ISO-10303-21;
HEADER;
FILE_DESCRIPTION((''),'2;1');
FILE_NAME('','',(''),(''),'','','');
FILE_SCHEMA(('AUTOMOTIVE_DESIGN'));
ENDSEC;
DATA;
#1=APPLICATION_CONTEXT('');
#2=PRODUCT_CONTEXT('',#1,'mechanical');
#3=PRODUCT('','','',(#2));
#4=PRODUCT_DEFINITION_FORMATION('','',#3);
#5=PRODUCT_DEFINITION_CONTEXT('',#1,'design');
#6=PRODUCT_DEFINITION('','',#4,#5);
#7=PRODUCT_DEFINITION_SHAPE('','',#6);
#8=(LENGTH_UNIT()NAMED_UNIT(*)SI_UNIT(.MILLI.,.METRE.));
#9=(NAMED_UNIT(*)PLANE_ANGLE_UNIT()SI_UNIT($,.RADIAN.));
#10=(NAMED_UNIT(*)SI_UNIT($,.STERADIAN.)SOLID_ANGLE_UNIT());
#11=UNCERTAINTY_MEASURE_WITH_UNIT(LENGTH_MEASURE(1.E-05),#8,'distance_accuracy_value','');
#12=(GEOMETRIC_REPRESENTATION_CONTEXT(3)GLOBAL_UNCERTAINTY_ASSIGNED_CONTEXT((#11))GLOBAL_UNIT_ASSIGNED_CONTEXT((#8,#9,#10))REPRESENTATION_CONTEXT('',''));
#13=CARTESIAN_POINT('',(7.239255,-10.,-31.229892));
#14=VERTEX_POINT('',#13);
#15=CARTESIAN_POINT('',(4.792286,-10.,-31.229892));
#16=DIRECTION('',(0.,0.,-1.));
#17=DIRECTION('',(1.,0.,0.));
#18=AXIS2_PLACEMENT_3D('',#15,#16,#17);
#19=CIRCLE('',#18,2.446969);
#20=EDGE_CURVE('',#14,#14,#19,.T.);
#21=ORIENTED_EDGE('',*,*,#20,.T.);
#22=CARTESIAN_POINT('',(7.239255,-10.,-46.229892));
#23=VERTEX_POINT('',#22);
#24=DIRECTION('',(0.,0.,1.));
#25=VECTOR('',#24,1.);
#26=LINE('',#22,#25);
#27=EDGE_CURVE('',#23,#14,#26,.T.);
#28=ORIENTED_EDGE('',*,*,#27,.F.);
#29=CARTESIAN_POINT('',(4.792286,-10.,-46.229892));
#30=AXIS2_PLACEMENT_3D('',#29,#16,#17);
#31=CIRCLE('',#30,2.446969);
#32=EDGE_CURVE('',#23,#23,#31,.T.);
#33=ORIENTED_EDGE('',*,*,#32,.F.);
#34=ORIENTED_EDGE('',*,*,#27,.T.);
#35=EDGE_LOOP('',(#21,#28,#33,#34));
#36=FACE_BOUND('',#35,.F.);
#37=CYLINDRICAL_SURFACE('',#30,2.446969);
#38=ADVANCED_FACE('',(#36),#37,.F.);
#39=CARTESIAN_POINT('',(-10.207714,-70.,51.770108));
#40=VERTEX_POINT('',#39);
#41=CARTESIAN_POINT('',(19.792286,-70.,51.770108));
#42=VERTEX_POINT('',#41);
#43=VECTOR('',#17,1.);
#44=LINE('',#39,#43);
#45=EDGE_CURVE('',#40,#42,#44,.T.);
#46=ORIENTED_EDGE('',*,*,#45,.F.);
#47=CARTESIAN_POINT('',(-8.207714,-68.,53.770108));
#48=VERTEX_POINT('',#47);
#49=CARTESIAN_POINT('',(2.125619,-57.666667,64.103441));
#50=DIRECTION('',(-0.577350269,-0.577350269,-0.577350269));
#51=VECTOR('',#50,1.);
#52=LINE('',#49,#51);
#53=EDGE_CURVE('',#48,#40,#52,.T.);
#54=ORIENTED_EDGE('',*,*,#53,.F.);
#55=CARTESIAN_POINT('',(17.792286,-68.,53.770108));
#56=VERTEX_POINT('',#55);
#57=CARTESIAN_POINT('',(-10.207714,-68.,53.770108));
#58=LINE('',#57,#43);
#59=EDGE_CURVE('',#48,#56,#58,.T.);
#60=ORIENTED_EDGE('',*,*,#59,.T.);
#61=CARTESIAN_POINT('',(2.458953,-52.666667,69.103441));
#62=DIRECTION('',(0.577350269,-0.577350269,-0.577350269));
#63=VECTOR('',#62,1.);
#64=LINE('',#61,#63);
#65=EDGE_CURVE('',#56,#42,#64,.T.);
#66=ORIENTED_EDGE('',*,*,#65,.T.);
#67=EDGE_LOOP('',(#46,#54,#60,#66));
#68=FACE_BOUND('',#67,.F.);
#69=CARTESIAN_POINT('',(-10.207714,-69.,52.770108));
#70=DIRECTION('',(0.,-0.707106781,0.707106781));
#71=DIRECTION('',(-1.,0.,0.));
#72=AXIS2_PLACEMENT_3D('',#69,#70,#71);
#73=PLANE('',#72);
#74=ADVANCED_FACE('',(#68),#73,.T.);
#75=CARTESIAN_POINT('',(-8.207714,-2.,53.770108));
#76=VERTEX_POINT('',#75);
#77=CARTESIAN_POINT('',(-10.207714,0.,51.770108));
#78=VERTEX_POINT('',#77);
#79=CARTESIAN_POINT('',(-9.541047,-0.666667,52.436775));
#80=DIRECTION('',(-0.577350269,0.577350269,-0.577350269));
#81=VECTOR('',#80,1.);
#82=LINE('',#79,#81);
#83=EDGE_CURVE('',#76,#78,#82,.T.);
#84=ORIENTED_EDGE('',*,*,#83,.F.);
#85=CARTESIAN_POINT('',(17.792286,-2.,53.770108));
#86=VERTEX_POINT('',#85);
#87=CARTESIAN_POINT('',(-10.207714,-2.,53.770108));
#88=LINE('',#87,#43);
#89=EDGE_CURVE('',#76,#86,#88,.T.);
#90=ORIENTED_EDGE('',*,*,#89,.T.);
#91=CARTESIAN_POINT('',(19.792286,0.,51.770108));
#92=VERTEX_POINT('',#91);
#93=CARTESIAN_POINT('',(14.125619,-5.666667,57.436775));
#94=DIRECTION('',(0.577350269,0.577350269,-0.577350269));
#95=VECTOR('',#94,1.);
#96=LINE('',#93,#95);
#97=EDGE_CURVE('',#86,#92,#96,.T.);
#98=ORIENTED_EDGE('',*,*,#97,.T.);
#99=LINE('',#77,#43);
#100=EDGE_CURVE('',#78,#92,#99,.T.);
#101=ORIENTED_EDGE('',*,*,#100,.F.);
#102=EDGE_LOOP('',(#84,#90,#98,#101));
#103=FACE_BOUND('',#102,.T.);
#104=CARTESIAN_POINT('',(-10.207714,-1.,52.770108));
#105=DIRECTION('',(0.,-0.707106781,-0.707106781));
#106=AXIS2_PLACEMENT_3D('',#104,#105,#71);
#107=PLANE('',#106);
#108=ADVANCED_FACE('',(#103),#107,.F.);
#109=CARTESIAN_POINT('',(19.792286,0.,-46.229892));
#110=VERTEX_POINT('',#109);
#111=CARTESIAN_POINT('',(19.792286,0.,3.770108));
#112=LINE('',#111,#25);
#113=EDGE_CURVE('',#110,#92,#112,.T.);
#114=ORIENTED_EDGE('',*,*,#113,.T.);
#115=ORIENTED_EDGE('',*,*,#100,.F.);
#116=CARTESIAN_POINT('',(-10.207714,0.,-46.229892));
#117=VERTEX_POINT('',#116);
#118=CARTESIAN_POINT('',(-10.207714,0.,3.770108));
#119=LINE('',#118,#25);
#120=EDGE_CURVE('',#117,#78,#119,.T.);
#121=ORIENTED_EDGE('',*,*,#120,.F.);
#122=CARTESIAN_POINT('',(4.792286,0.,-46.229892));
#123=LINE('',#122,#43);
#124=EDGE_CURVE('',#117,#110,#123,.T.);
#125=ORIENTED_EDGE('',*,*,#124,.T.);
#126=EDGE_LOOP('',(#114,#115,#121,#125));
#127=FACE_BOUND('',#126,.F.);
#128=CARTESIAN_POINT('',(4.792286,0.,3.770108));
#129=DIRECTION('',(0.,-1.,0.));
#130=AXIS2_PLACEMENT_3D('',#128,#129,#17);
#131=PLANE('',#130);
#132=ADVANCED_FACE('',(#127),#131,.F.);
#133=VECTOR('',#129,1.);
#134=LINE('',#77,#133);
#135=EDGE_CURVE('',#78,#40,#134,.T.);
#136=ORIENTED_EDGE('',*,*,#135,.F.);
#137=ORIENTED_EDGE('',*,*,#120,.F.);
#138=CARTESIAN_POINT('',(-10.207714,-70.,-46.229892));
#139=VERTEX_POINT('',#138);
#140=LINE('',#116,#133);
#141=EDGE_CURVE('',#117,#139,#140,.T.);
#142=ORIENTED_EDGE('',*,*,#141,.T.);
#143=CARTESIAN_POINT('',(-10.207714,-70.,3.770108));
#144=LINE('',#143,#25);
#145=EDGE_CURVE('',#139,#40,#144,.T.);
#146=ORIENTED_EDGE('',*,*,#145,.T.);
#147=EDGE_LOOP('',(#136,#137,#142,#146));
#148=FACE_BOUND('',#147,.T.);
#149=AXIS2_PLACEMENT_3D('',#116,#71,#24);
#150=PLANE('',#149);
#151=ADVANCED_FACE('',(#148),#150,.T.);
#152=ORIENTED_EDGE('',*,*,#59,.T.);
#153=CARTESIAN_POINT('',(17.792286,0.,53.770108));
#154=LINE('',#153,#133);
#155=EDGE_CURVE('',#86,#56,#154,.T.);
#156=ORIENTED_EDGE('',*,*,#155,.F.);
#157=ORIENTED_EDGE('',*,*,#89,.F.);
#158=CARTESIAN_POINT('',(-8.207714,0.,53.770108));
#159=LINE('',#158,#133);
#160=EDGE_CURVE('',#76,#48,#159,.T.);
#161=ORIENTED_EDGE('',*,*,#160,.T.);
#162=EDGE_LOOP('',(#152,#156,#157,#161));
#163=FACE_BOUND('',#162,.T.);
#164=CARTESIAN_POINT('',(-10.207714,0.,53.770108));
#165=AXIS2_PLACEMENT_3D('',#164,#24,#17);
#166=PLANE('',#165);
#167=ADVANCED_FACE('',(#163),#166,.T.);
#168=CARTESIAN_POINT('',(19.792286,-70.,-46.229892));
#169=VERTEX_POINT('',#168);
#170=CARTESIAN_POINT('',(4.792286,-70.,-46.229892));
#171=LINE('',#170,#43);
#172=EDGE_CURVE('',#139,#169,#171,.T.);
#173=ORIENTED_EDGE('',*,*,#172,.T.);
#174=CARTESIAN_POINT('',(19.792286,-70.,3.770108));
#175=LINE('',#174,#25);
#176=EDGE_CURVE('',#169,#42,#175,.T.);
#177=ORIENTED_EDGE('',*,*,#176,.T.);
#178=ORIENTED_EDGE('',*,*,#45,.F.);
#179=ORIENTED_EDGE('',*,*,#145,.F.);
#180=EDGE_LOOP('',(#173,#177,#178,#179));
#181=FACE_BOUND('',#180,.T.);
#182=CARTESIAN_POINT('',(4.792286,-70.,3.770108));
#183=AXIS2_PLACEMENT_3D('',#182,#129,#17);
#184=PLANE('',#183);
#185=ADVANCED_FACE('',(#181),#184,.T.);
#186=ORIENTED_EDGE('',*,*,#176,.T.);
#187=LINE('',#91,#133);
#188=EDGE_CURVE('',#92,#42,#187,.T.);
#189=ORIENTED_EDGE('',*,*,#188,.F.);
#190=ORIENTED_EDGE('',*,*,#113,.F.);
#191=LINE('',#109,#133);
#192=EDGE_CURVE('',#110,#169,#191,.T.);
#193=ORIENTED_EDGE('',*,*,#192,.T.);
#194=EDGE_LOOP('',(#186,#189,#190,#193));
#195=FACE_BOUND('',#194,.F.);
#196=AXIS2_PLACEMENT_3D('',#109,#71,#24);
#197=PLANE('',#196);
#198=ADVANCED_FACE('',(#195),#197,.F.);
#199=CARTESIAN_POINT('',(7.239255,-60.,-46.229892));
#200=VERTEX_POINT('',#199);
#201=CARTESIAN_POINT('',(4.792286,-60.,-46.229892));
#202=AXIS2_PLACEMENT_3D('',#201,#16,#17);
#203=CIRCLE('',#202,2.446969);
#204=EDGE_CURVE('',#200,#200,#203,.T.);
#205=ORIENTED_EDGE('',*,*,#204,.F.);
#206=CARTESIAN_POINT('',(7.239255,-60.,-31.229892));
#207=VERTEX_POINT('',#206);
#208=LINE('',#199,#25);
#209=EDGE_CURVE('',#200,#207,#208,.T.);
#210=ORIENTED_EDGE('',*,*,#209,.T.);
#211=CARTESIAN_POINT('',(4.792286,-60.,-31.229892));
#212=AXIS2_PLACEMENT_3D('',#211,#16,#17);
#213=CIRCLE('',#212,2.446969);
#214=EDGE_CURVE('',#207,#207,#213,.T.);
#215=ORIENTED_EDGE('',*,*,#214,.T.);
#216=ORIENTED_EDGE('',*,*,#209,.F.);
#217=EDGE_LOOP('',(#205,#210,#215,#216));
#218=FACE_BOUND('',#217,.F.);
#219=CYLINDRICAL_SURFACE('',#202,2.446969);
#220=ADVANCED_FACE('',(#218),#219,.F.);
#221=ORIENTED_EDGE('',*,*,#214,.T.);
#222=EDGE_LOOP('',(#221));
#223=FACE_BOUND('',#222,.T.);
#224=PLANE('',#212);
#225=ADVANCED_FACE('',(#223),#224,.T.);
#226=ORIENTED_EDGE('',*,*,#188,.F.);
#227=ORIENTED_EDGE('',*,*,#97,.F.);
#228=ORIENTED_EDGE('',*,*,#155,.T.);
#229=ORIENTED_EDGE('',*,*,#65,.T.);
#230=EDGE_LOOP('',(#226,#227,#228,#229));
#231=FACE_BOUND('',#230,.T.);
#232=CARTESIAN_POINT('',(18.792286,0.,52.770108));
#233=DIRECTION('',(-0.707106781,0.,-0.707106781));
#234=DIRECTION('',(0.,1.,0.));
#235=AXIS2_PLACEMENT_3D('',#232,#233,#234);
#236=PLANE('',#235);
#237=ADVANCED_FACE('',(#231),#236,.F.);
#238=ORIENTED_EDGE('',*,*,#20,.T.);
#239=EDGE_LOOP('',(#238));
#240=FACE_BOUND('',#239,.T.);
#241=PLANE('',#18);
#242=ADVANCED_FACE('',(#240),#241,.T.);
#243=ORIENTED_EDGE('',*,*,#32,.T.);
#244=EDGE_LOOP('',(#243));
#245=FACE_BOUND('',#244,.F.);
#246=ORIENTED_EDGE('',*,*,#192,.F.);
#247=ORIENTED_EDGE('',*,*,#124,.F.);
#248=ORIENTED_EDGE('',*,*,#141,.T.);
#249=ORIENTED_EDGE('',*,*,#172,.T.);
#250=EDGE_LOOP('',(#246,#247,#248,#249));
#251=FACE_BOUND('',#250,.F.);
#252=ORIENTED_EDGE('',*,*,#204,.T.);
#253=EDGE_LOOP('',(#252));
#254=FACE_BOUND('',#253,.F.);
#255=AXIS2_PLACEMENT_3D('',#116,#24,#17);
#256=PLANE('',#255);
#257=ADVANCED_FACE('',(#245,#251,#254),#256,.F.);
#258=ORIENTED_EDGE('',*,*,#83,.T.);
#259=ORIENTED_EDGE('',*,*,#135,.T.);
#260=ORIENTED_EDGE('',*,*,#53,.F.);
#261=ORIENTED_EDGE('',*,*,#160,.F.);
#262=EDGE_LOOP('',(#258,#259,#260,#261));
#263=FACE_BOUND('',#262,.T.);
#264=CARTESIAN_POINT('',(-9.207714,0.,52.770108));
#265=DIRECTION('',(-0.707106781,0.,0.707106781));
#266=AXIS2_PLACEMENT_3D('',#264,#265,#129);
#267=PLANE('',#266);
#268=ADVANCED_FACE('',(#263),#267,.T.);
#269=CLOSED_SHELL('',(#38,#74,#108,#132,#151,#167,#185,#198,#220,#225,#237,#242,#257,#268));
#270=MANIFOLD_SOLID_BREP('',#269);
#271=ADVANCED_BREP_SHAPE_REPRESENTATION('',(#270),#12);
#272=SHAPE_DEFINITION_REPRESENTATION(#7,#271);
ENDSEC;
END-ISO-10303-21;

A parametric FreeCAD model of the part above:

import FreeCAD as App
import Part
import Sketcher
from FreeCAD import Vector


def edges_at(feature, points):
    """Names of the edges that pass closest to the given points."""
    edges = feature.Shape.Edges
    near = lambda p: min(range(len(edges)), key=lambda i: edges[i].distToShape(Part.Vertex(*p))[0])
    return sorted({f"Edge{near(p) + 1}" for p in points})


def add_polygon(sketch, points):
    """Adds a closed chain of lines whose ends are joined by coincident constraints."""
    first, n = sketch.GeometryCount, len(points)
    for a, b in zip(points, points[1:] + points[:1]):
        sketch.addGeometry(Part.LineSegment(App.Vector(*a, 0), App.Vector(*b, 0)), False)
    for i in range(n):
        sketch.addConstraint(Sketcher.Constraint("Coincident", first + i, 2, first + (i + 1) % n, 1))

doc = App.newDocument("Part")
body = doc.addObject("PartDesign::Body", "Body")

# Sketch on XZ plane
sketch1 = body.newObject("Sketcher::SketchObject", "Sketch")
sketch1.AttachmentSupport = (doc.getObject("XZ_Plane"), [""])
sketch1.MapMode = "FlatFace"
add_polygon(sketch1, [(-10.207714, 53.770108), (-10.207714, -46.229892), (19.792286, -46.229892), (19.792286, 53.770108)])  # lines 0-3
sketch1.addConstraint([
    Sketcher.Constraint("Vertical", 0),
    Sketcher.Constraint("Horizontal", 1),
    Sketcher.Constraint("Vertical", 2),
    Sketcher.Constraint("Horizontal", 3),
    Sketcher.Constraint("DistanceX", 1, 1, 1, 2, 30.0),
    Sketcher.Constraint("DistanceY", 0, 2, 0, 1, 100.0),
    Sketcher.Constraint("DistanceX", 0, 2, -1, 1, 10.207714),
    Sketcher.Constraint("DistanceY", 0, 2, -1, 1, 46.229892),
])
pad1 = body.newObject("PartDesign::Pad", "Pad")
pad1.Profile = sketch1
pad1.Length = 70

# Sketch on XY plane
sketch2 = body.newObject("Sketcher::SketchObject", "Sketch001")
sketch2.AttachmentSupport = (doc.getObject("XY_Plane"), [""])
sketch2.MapMode = "FlatFace"
sketch2.AttachmentOffset = App.Placement(Vector(0, 0, -46.229892), App.Rotation())
sketch2.addGeometry([
    Part.Circle(Vector(4.792286, -60, 0), Vector(0, 0, 1), 2.446969),
    Part.Circle(Vector(4.792286, -10, 0), Vector(0, 0, 1), 2.446969),
], False)
sketch2.addConstraint([
    Sketcher.Constraint("Equal", 0, 1),
    Sketcher.Constraint("Vertical", 0, 3, 1, 3),
    Sketcher.Constraint("DistanceY", 0, 3, -1, 1, 60.0),
    Sketcher.Constraint("DistanceY", 1, 3, -1, 1, 10.0),
    Sketcher.Constraint("Diameter", 0, 4.893938),
    Sketcher.Constraint("DistanceX", -1, 1, 0, 3, 4.792286),
])
pocket1 = body.newObject("PartDesign::Pocket", "Pocket")
pocket1.Profile = sketch2
pocket1.Length = 15
pocket1.Reversed = True
doc.recompute()

chamfer = body.newObject("PartDesign::Chamfer", "Chamfer")
chamfer.Base = (pocket1, edges_at(pocket1, [
    (4.792, -70, 53.77),
    (19.792, -35, 53.77),
    (4.792, 0, 53.77),
    (-10.208, -35, 53.77),
]))
chamfer.Size = 2

doc.recompute()
